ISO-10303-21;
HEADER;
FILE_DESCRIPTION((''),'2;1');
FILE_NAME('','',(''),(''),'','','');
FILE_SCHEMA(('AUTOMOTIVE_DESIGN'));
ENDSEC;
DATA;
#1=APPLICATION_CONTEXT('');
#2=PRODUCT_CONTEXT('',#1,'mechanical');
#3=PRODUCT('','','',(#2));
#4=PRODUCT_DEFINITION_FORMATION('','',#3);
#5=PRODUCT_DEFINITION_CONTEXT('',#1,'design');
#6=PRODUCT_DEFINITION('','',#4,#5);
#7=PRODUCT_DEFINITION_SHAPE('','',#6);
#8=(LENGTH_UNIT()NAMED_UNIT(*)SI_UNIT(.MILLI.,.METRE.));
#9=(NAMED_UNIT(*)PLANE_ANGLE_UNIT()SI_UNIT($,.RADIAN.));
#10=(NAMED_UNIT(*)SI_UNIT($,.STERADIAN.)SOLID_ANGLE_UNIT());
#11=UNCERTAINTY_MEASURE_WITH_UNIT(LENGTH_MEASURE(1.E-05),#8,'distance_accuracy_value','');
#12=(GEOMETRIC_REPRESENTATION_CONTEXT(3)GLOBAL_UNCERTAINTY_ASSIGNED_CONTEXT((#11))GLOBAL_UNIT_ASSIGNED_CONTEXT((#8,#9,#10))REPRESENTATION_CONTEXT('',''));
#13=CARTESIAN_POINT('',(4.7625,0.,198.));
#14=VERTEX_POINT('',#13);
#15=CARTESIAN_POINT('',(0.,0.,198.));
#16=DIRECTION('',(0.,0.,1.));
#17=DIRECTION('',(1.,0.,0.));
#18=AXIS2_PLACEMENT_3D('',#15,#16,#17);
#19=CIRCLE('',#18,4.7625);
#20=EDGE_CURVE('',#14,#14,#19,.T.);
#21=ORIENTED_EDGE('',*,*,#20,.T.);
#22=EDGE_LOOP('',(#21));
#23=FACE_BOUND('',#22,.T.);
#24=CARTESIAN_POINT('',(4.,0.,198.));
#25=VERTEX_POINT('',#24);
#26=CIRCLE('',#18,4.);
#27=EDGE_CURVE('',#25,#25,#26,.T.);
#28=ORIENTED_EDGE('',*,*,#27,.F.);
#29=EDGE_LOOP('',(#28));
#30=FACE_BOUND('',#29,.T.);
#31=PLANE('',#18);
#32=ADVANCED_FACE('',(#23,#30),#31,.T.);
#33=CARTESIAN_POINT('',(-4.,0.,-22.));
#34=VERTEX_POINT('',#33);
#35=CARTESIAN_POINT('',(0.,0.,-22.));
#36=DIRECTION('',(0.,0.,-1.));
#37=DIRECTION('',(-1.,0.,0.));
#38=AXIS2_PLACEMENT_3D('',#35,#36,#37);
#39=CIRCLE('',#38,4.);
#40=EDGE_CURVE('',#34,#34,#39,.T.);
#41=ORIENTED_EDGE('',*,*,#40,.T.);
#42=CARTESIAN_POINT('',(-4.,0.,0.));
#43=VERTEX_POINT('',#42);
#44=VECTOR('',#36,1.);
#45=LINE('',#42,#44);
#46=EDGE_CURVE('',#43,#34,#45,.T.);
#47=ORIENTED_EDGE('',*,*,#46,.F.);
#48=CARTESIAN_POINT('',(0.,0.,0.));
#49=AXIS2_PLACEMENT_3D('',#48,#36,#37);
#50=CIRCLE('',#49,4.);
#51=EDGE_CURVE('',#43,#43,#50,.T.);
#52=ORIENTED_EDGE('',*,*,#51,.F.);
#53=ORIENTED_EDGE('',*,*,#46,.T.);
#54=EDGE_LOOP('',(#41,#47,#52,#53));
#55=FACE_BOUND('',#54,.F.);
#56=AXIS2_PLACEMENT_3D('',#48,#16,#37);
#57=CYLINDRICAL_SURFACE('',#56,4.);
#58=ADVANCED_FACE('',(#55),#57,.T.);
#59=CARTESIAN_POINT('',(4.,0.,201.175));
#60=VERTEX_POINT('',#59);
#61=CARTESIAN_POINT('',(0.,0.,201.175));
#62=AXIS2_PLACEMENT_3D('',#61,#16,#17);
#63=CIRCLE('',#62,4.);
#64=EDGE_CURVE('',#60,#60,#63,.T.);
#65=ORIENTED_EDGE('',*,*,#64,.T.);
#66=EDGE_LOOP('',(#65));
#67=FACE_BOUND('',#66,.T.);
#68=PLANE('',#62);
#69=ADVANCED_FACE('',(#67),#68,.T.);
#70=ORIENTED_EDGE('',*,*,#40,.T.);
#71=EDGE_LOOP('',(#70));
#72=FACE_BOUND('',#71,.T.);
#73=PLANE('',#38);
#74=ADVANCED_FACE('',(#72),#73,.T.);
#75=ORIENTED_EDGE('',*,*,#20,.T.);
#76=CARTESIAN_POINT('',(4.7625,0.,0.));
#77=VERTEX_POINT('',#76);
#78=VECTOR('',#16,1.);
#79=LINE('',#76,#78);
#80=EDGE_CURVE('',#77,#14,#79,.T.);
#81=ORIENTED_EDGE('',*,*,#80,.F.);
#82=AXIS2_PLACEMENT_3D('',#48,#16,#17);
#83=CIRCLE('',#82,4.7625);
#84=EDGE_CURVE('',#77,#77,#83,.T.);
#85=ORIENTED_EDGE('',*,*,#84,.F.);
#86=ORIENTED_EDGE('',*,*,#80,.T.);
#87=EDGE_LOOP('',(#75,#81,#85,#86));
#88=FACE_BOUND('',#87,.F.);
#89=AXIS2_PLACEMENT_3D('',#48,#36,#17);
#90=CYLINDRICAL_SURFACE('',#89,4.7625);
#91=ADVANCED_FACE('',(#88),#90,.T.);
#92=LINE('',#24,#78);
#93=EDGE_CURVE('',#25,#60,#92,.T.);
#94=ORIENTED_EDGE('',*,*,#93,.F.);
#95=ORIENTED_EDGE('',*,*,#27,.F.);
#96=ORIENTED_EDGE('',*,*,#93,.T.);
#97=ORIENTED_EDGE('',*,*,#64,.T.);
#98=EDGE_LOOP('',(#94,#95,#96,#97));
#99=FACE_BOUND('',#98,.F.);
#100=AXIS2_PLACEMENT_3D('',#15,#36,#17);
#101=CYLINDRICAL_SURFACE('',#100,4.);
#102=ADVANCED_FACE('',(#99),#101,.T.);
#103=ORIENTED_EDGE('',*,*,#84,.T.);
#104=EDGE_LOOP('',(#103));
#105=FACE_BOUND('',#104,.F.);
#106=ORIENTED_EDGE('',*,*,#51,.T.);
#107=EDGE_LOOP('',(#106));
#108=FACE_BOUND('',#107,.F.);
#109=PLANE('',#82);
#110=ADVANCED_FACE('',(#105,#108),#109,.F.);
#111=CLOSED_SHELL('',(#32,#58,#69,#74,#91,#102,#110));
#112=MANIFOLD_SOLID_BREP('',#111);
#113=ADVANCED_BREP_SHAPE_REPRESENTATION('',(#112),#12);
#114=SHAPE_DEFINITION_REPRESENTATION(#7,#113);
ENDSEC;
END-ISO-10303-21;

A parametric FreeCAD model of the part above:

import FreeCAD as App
import Part
import Sketcher
Q = App.Units.Quantity

doc = App.newDocument("Part")
body = doc.addObject("PartDesign::Body", "Body")

sketch1 = body.newObject("Sketcher::SketchObject", "Sketch")
sketch1.AttachmentSupport = (doc.getObject("XY_Plane"), [""])
sketch1.MapMode = "FlatFace"
sketch1.addGeometry(Part.Circle(App.Vector(0, 0, 0), App.Vector(0, 0, 1), 4.8), False)
sketch1.addConstraint(Sketcher.Constraint("Coincident", 0, 3, -1, 1))
sketch1.addConstraint(Sketcher.Constraint("Diameter", 0, Q("9.525 mm")))
pad1 = body.newObject("PartDesign::Pad", "Pad")
pad1.Profile = sketch1
pad1.Length = 198

sketch2 = body.newObject("Sketcher::SketchObject", "Sketch001")
sketch2.AttachmentSupport = (doc.getObject("XY_Plane"), [""])
sketch2.MapMode = "FlatFace"
sketch2.AttachmentOffset = App.Placement(App.Vector(0, 0, 198), App.Rotation())
sketch2.addGeometry(Part.Circle(App.Vector(0, 0, 0), App.Vector(0, 0, 1), 4), False)
sketch2.addConstraint(Sketcher.Constraint("Coincident", 0, 3, -1, 1))
sketch2.addConstraint(Sketcher.Constraint("Diameter", 0, Q("8 mm")))
pad2 = body.newObject("PartDesign::Pad", "Pad001")
pad2.Profile = sketch2
pad2.Length = 3.175

sketch3 = body.newObject("Sketcher::SketchObject", "Sketch002")
sketch3.AttachmentSupport = (doc.getObject("XY_Plane"), [""])
sketch3.MapMode = "FlatFace"
sketch3.addGeometry(Part.Circle(App.Vector(0, 0, 0), App.Vector(0, 0, 1), 4), False)
sketch3.addConstraint(Sketcher.Constraint("Coincident", 0, 3, -1, 1))
sketch3.addConstraint(Sketcher.Constraint("Diameter", 0, Q("8 mm")))
pad3 = body.newObject("PartDesign::Pad", "Pad002")
pad3.Profile = sketch3
pad3.Length = 22
pad3.Reversed = True

doc.recompute()
